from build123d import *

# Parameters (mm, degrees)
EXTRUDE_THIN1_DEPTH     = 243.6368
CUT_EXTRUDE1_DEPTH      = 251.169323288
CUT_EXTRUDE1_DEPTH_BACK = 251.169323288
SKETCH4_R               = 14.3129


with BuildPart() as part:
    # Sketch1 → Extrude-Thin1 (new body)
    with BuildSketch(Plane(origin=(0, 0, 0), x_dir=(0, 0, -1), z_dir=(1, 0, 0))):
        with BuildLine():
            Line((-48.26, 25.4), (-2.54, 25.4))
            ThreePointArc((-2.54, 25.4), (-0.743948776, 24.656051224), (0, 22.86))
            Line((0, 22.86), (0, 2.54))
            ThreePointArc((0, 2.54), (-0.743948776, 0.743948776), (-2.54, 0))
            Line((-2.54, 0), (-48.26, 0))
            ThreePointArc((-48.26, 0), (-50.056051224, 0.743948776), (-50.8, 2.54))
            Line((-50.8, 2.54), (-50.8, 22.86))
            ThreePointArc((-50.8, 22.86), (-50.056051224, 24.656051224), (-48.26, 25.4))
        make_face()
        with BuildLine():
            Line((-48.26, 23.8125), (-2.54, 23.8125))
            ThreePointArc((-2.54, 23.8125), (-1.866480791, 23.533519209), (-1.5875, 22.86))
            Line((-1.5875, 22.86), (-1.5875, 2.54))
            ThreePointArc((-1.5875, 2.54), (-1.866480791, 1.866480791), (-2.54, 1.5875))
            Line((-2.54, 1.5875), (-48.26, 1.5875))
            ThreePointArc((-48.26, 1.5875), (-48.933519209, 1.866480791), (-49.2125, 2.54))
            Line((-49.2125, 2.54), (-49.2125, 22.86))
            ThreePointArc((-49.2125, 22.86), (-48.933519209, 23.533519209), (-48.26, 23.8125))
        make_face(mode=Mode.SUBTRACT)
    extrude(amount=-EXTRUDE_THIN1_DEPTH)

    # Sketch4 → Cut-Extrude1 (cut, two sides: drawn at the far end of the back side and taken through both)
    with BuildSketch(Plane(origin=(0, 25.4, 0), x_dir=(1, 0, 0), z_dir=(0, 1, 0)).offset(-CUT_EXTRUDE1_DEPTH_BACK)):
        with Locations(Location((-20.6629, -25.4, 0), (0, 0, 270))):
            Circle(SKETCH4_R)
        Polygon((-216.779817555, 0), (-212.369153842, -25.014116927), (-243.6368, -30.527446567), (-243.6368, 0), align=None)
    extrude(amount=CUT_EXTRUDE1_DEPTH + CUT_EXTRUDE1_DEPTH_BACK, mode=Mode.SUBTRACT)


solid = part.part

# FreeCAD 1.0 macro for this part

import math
import FreeCAD as App
import Part
import Sketcher
from FreeCAD import Vector
Q = App.Units.Quantity


def add_polygon(sketch, points):
    """Adds a closed chain of lines whose ends are joined by coincident constraints."""
    first, n = sketch.GeometryCount, len(points)
    for a, b in zip(points, points[1:] + points[:1]):
        sketch.addGeometry(Part.LineSegment(App.Vector(*a, 0), App.Vector(*b, 0)), False)
    for i in range(n):
        sketch.addConstraint(Sketcher.Constraint("Coincident", first + i, 2, first + (i + 1) % n, 1))

doc = App.newDocument("Part")
params = doc.addObject("Spreadsheet::Sheet", "Params")
for row, (alias, value) in enumerate([
    ("sketch1_radius", "0.1 in"),
    ("sketch1_width", "0.8 in"),
    ("sketch1_height", "1.8 in"),
    ("pad1_length", "9.592 in"),
    ("sketch2_length", "1 in"),
    ("sketch2_diameter", "1.127 in"),
    ("sketch2_length2", "1.25 in"),
], start=1):
    params.set(f"A{row}", alias)
    params.set(f"B{row}", "=" + value)
    params.setAlias(f"B{row}", alias)

body = doc.addObject("PartDesign::Body", "Body")

# Sketch on YZ plane
sketch1 = doc.addObject("Sketcher::SketchObject", "Sketch")
body.addObject(sketch1)
sketch1.AttachmentSupport = (doc.YZ_Plane, [""])
sketch1.MapMode = "FlatFace"
sketch1.addGeometry(Part.LineSegment(Vector(25.4, 2.54, 0), Vector(25.4, 48.26, 0)), False)
sketch1.addGeometry(Part.ArcOfCircle(Part.Circle(Vector(22.86, 48.26, 0), Vector(0, 0, 1), 2.54), math.radians(0), math.radians(90)), False)
sketch1.addGeometry(Part.LineSegment(Vector(22.86, 50.8, 0), Vector(2.54, 50.8, 0)), False)
sketch1.addGeometry(Part.ArcOfCircle(Part.Circle(Vector(2.54, 48.26, 0), Vector(0, 0, 1), 2.54), math.radians(90), math.radians(180)), False)
sketch1.addGeometry(Part.LineSegment(Vector(0, 48.26, 0), Vector(0, 2.54, 0)), False)
sketch1.addGeometry(Part.ArcOfCircle(Part.Circle(Vector(2.54, 2.54, 0), Vector(0, 0, 1), 2.54), math.radians(-180), math.radians(-90)), False)
sketch1.addGeometry(Part.LineSegment(Vector(2.54, 0, 0), Vector(22.86, 0, 0)), False)
sketch1.addGeometry(Part.ArcOfCircle(Part.Circle(Vector(22.86, 2.54, 0), Vector(0, 0, 1), 2.54), math.radians(-90), math.radians(0)), False)
sketch1.addGeometry(Part.LineSegment(Vector(23.8125, 48.26, 0), Vector(23.8125, 2.54, 0)), False)
sketch1.addGeometry(Part.ArcOfCircle(Part.Circle(Vector(22.86, 2.54, 0), Vector(0, 0, 1), 0.9525), math.radians(-90), math.radians(0)), False)
sketch1.addGeometry(Part.LineSegment(Vector(22.86, 1.5875, 0), Vector(2.54, 1.5875, 0)), False)
sketch1.addGeometry(Part.ArcOfCircle(Part.Circle(Vector(2.54, 2.54, 0), Vector(0, 0, 1), 0.9525), math.radians(180), math.radians(270)), False)
sketch1.addGeometry(Part.LineSegment(Vector(1.5875, 2.54, 0), Vector(1.5875, 48.26, 0)), False)
sketch1.addGeometry(Part.ArcOfCircle(Part.Circle(Vector(2.54, 48.26, 0), Vector(0, 0, 1), 0.9525), math.radians(90), math.radians(180)), False)
sketch1.addGeometry(Part.LineSegment(Vector(2.54, 49.2125, 0), Vector(22.86, 49.2125, 0)), False)
sketch1.addGeometry(Part.ArcOfCircle(Part.Circle(Vector(22.86, 48.26, 0), Vector(0, 0, 1), 0.9525), math.radians(0), math.radians(90)), False)
sketch1.addConstraint(Sketcher.Constraint("Tangent", 0, 2, 1, 1))
sketch1.addConstraint(Sketcher.Constraint("Tangent", 1, 2, 2, 1))
sketch1.addConstraint(Sketcher.Constraint("Tangent", 2, 2, 3, 1))
sketch1.addConstraint(Sketcher.Constraint("Tangent", 3, 2, 4, 1))
sketch1.addConstraint(Sketcher.Constraint("Tangent", 4, 2, 5, 1))
sketch1.addConstraint(Sketcher.Constraint("Tangent", 5, 2, 6, 1))
sketch1.addConstraint(Sketcher.Constraint("Tangent", 6, 2, 7, 1))
sketch1.addConstraint(Sketcher.Constraint("Tangent", 7, 2, 0, 1))
sketch1.addConstraint(Sketcher.Constraint("Tangent", 8, 2, 9, 2))
sketch1.addConstraint(Sketcher.Constraint("Tangent", 9, 1, 10, 1))
sketch1.addConstraint(Sketcher.Constraint("Tangent", 10, 2, 11, 2))
sketch1.addConstraint(Sketcher.Constraint("Tangent", 11, 1, 12, 1))
sketch1.addConstraint(Sketcher.Constraint("Tangent", 12, 2, 13, 2))
sketch1.addConstraint(Sketcher.Constraint("Tangent", 13, 1, 14, 1))
sketch1.addConstraint(Sketcher.Constraint("Tangent", 14, 2, 15, 2))
sketch1.addConstraint(Sketcher.Constraint("Tangent", 15, 1, 8, 1))
sketch1.addConstraint(Sketcher.Constraint("Vertical", 0))
sketch1.addConstraint(Sketcher.Constraint("Horizontal", 2))
sketch1.addConstraint(Sketcher.Constraint("Vertical", 4))
sketch1.addConstraint(Sketcher.Constraint("Horizontal", 6))
sketch1.addConstraint(Sketcher.Constraint("Vertical", 8))
sketch1.addConstraint(Sketcher.Constraint("Horizontal", 10))
sketch1.addConstraint(Sketcher.Constraint("Vertical", 12))
sketch1.addConstraint(Sketcher.Constraint("Horizontal", 14))
sketch1.addConstraint(Sketcher.Constraint("Coincident", 9, 3, 7, 3))
sketch1.addConstraint(Sketcher.Constraint("Coincident", 11, 3, 5, 3))
sketch1.addConstraint(Sketcher.Constraint("Coincident", 13, 3, 3, 3))
sketch1.addConstraint(Sketcher.Constraint("Equal", 1, 3))
sketch1.addConstraint(Sketcher.Constraint("Equal", 3, 5))
sketch1.addConstraint(Sketcher.Constraint("Equal", 5, 7))
sketch1.addConstraint(Sketcher.Constraint("Equal", 13, 15))
sketch1.addConstraint(Sketcher.Constraint("PointOnObject", 3, 2, -2))
sketch1.addConstraint(Sketcher.Constraint("PointOnObject", 5, 2, -1))
sketch1.addConstraint(Sketcher.Constraint("Radius", 1, Q("0.1 in")))
sketch1.addConstraint(Sketcher.Constraint("DistanceX", 2, 2, 2, 1, Q("0.8 in")))
sketch1.addConstraint(Sketcher.Constraint("DistanceY", 0, 1, 0, 2, Q("1.8 in")))
sketch1.addConstraint(Sketcher.Constraint("Radius", 9, Q("0.0375 in")))
sketch1.setExpression("Constraints[33]", "Params.sketch1_radius")
sketch1.setExpression("Constraints[34]", "Params.sketch1_width")
sketch1.setExpression("Constraints[35]", "Params.sketch1_height")
pad1 = doc.addObject("PartDesign::Pad", "Pad")
body.addObject(pad1)
pad1.Profile = sketch1
pad1.setExpression("Length", "Params.pad1_length")
pad1.Reversed = True

# Sketch on XZ plane
sketch2 = doc.addObject("Sketcher::SketchObject", "Sketch001")
body.addObject(sketch2)
sketch2.AttachmentSupport = (doc.XZ_Plane, [""])
sketch2.MapMode = "FlatFace"
sketch2.AttachmentOffset = App.Placement(Vector(0, 0, -1 * 25.4), App.Rotation())
sketch2.addGeometry(Part.Circle(Vector(-20.6629, 25.4, 0), Vector(0, 0, 1), 14.3129), False)  # 0
add_polygon(sketch2, [(-212.369154, 25.014117), (-216.779818, 0), (-243.6368, 0), (-243.6368, 30.527447)])  # lines 1-4
sketch2.addConstraint(Sketcher.Constraint("Horizontal", 2))
sketch2.addConstraint(Sketcher.Constraint("Vertical", 3))
sketch2.addConstraint(Sketcher.Constraint("PointOnObject", 1, 2, -1))
sketch2.addConstraint(Sketcher.Constraint("Perpendicular", 1, 4))
sketch2.addConstraint(Sketcher.Constraint("Distance", 1, Q("1 in")))
sketch2.addConstraint(Sketcher.Constraint("Diameter", 0, Q("1.127 in")))
sketch2.addConstraint(Sketcher.Constraint("DistanceY", -1, 1, 0, 3, Q("1 in")))
sketch2.addConstraint(Sketcher.Constraint("Angle", 1, Q("-100 deg")))
sketch2.addConstraint(Sketcher.Constraint("Distance", 4, Q("1.25 in")))
sketch2.addConstraint(Sketcher.Constraint("DistanceX", 2, 2, -1, 1, Q("9.592 in")))
sketch2.addConstraint(Sketcher.Constraint("DistanceX", 0, 3, -1, 1, Q("0.8135 in")))
sketch2.setExpression("Constraints[8]", "Params.sketch2_length")
sketch2.setExpression("Constraints[9]", "Params.sketch2_diameter")
sketch2.setExpression("Constraints[12]", "Params.sketch2_length2")
pocket1 = doc.addObject("PartDesign::Pocket", "Pocket")
body.addObject(pocket1)
pocket1.Profile = sketch2
pocket1.Type = "ThroughAll"
pocket1.Midplane = True

doc.recompute()
